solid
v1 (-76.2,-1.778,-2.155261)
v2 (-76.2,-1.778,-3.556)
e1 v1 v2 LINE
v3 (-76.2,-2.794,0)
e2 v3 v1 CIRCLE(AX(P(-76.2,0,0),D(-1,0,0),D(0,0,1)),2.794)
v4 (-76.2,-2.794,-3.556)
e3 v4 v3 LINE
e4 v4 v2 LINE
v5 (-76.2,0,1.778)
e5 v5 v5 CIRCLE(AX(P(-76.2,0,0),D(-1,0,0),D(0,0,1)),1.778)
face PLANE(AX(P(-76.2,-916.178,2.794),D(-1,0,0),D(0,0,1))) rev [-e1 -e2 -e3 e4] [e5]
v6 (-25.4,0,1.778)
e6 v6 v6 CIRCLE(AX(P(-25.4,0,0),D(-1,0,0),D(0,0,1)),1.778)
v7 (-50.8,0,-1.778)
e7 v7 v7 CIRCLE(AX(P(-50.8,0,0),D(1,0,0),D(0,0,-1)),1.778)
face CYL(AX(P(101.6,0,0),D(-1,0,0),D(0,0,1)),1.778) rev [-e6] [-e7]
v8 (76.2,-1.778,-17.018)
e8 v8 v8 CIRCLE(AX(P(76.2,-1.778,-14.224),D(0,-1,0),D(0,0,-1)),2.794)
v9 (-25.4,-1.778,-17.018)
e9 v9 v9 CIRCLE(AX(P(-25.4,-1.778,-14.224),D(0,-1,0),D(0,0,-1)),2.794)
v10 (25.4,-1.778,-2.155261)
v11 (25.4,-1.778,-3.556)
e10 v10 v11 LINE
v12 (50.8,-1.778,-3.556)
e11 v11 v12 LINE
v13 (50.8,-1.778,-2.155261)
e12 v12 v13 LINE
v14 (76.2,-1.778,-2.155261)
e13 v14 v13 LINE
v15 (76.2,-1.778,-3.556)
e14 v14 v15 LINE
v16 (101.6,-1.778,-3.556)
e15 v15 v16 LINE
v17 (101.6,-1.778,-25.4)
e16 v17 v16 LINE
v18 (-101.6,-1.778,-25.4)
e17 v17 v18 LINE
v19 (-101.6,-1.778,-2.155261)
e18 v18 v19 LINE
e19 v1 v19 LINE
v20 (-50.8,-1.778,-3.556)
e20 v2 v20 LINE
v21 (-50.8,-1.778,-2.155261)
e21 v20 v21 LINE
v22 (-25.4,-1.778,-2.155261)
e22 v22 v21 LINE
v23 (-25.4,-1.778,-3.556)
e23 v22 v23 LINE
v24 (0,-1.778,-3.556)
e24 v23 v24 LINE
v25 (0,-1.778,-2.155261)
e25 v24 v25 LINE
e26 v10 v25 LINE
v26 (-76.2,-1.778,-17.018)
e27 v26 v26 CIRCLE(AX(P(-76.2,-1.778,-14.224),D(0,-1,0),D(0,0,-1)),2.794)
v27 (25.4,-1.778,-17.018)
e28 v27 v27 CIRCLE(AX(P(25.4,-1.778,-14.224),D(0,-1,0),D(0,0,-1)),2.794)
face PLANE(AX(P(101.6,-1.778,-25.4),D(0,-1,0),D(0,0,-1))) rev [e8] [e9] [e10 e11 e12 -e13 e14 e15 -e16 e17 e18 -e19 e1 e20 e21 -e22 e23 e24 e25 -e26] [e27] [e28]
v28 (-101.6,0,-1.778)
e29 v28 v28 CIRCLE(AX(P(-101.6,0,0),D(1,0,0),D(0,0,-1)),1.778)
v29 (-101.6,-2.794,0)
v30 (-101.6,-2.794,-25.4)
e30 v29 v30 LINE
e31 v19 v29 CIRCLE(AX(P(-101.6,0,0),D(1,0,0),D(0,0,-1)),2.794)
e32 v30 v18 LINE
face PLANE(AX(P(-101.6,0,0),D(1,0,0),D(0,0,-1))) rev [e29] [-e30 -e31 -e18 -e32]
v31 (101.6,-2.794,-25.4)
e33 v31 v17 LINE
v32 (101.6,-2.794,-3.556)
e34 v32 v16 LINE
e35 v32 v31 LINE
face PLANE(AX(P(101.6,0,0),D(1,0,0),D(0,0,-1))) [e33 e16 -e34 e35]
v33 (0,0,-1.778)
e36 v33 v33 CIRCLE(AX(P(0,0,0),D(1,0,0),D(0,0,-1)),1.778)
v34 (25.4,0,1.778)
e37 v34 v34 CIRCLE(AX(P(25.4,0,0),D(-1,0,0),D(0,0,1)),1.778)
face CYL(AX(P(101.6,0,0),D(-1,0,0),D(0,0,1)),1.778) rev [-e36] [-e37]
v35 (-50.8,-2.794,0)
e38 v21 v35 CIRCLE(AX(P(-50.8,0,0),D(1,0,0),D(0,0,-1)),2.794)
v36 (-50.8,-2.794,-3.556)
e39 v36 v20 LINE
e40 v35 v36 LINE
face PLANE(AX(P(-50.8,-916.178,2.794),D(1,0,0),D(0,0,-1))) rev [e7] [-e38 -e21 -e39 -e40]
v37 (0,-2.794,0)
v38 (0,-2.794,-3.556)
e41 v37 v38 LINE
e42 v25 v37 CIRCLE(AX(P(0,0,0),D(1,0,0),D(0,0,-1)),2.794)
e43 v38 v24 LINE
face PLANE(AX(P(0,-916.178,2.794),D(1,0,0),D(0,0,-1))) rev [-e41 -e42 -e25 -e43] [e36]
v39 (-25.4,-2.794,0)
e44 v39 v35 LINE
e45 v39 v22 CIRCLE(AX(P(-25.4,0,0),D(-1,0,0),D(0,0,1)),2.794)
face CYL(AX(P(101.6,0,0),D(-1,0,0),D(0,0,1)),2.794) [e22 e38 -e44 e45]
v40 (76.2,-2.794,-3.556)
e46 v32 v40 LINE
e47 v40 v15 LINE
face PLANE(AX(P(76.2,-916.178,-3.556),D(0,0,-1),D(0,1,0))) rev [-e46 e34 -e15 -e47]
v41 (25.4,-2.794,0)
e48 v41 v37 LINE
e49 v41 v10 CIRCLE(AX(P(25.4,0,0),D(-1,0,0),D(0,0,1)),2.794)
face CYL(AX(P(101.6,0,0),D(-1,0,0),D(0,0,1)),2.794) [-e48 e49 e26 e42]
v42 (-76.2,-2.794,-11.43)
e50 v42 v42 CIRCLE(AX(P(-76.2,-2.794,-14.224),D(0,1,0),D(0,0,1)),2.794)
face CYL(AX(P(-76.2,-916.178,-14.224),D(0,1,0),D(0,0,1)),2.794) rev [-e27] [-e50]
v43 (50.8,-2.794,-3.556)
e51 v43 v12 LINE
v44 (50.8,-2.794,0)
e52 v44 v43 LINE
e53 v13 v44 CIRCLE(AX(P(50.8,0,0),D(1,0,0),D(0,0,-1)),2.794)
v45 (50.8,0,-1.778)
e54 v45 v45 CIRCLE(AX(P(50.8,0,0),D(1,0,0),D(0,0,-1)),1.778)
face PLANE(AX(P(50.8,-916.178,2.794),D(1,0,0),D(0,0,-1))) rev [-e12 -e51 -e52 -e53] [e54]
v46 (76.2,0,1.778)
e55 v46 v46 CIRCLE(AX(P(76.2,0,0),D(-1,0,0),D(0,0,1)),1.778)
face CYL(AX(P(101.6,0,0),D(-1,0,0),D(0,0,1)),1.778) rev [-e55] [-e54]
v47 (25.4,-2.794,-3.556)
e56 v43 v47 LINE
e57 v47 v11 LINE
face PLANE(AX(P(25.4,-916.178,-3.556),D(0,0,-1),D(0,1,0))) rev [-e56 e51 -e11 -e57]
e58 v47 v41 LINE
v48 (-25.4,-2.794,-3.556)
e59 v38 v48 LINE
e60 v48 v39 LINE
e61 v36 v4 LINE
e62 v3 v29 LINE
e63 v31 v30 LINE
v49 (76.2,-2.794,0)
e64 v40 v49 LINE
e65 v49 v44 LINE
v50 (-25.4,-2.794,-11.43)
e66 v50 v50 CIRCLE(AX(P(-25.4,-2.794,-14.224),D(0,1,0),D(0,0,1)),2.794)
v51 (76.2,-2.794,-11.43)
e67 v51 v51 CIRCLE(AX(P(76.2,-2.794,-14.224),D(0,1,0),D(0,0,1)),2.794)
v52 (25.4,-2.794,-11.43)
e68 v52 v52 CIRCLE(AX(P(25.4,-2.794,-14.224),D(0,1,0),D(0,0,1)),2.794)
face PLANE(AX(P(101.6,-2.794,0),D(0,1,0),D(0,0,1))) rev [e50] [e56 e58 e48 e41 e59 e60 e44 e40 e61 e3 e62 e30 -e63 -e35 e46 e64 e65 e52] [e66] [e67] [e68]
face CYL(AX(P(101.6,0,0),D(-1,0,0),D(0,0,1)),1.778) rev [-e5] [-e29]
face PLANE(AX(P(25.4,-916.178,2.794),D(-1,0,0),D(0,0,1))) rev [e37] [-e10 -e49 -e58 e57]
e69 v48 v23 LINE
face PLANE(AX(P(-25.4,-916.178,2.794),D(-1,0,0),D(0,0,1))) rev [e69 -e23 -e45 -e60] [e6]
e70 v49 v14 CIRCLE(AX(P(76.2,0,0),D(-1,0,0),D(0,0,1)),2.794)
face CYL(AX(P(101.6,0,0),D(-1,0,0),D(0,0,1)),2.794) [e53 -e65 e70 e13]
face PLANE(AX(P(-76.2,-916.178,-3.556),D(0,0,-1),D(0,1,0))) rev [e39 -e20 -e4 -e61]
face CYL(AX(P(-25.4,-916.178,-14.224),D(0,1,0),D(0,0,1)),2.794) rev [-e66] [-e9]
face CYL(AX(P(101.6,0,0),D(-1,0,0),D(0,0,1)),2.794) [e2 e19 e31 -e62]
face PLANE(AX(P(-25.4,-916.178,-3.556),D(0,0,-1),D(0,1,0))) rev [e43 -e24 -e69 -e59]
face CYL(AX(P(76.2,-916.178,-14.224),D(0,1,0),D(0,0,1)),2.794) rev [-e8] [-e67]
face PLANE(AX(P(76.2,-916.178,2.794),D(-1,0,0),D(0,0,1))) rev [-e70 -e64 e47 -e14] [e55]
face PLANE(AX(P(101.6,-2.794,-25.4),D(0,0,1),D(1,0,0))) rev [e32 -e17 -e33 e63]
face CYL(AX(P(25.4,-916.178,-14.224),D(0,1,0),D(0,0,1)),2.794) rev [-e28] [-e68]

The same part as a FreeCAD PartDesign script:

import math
import FreeCAD as App
import Part
import Sketcher

V = App.Vector
Q = App.Units.Quantity


def add_polygon(sketch, points):
    """Adds a closed chain of lines whose ends are joined by coincident constraints."""
    first, n = sketch.GeometryCount, len(points)
    for a, b in zip(points, points[1:] + points[:1]):
        sketch.addGeometry(Part.LineSegment(App.Vector(*a, 0), App.Vector(*b, 0)), False)
    for i in range(n):
        sketch.addConstraint(Sketcher.Constraint("Coincident", first + i, 2, first + (i + 1) % n, 1))

doc = App.newDocument("Part")
body = doc.addObject("PartDesign::Body", "Body")

# Sketch on YZ plane
sketch1 = doc.addObject("Sketcher::SketchObject", "Sketch")
body.addObject(sketch1)
sketch1.AttachmentSupport = (doc.YZ_Plane, [""])
sketch1.MapMode = "FlatFace"
sketch1.addGeometry([
    Part.LineSegment(V(-2.794, 0, 0), V(-2.794, -25.4, 0)),  # 0
    Part.LineSegment(V(-2.794, -25.4, 0), V(-1.778, -25.4, 0)),  # 1
    Part.LineSegment(V(-1.778, -25.4, 0), V(-1.778, -2.155261, 0)),  # 2
    Part.ArcOfCircle(Part.Circle(V(0, 0, 0), V(0, 0, 1), 2.794), math.radians(-129.521196), math.radians(180)),  # 3
    Part.Circle(V(0, 0, 0), V(0, 0, 1), 1.778),  # 4
], False)
sketch1.addConstraint([
    Sketcher.Constraint("Coincident", 0, 2, 1, 1),
    Sketcher.Constraint("Coincident", 1, 2, 2, 1),
    Sketcher.Constraint("Coincident", 2, 2, 3, 1),
    Sketcher.Constraint("Tangent", 3, 2, 0, 1),
    Sketcher.Constraint("Vertical", 0),
    Sketcher.Constraint("Horizontal", 1),
    Sketcher.Constraint("Vertical", 2),
    Sketcher.Constraint("Coincident", 3, 3, -1, 1),
    Sketcher.Constraint("Coincident", 4, 3, -1, 1),
    Sketcher.Constraint("Diameter", 4, Q("0.14 in")),
    Sketcher.Constraint("DistanceY", 0, 2, 0, 1, Q("1 in")),
    Sketcher.Constraint("Radius", 3, Q("0.11 in")),
    Sketcher.Constraint("DistanceX", 1, 1, 1, 2, Q("0.04 in")),
])
pad1 = doc.addObject("PartDesign::Pad", "Pad")
body.addObject(pad1)
pad1.Profile = sketch1
pad1.Length = Q("8 in")
pad1.Midplane = True

# Sketch on XZ plane
sketch2 = doc.addObject("Sketcher::SketchObject", "Sketch001")
body.addObject(sketch2)
sketch2.AttachmentSupport = (doc.XZ_Plane, [""])
sketch2.MapMode = "FlatFace"
sketch2.AttachmentOffset = App.Placement(V(0, 0, 0.07 * 25.4), App.Rotation())
sketch2.addGeometry(Part.Circle(V(-25.4, -14.224, 0), V(0, 0, 1), 2.794), False)  # 0
add_polygon(sketch2, [(-25.4, -3.556), (-25.4, 2.794), (0, 2.794), (0, -3.556)])  # lines 1-4
sketch2.addConstraint([
    Sketcher.Constraint("Vertical", 1),
    Sketcher.Constraint("Horizontal", 2),
    Sketcher.Constraint("Vertical", 3),
    Sketcher.Constraint("Horizontal", 4),
    Sketcher.Constraint("PointOnObject", 2, 2, -2),
    Sketcher.Constraint("Vertical", 0, 3, 1, 2),
    Sketcher.Constraint("Diameter", 0, Q("0.22 in")),
    Sketcher.Constraint("DistanceX", 2, 1, 2, 2, Q("1 in")),
    Sketcher.Constraint("DistanceY", 1, 1, 1, 2, Q("0.25 in")),
    Sketcher.Constraint("DistanceY", 0, 3, -1, 1, Q("0.56 in")),
    Sketcher.Constraint("DistanceY", -1, 1, 1, 2, Q("0.11 in")),
])
pocket1 = doc.addObject("PartDesign::Pocket", "Pocket")
body.addObject(pocket1)
pocket1.Profile = sketch2
pocket1.Length = Q("72 in")
pocket1.Midplane = True
doc.recompute()

linearpattern = doc.addObject("PartDesign::LinearPattern", "LinearPattern")
body.addObject(linearpattern)
linearpattern.Originals = [pocket1]
linearpattern.Direction = (doc.X_Axis, [""])
linearpattern.Mode = "offset"
linearpattern.Offset = Q("2 in")
linearpattern.Occurrences = 3
linearpattern.Reversed = True
body.Tip = linearpattern
doc.recompute()

linearpattern2 = doc.addObject("PartDesign::LinearPattern", "LinearPattern001")
body.addObject(linearpattern2)
linearpattern2.Originals = [pocket1]
linearpattern2.Direction = (doc.X_Axis, [""])
linearpattern2.Mode = "offset"
linearpattern2.Offset = Q("2 in")
linearpattern2.Occurrences = 3
body.Tip = linearpattern2

doc.recompute()
